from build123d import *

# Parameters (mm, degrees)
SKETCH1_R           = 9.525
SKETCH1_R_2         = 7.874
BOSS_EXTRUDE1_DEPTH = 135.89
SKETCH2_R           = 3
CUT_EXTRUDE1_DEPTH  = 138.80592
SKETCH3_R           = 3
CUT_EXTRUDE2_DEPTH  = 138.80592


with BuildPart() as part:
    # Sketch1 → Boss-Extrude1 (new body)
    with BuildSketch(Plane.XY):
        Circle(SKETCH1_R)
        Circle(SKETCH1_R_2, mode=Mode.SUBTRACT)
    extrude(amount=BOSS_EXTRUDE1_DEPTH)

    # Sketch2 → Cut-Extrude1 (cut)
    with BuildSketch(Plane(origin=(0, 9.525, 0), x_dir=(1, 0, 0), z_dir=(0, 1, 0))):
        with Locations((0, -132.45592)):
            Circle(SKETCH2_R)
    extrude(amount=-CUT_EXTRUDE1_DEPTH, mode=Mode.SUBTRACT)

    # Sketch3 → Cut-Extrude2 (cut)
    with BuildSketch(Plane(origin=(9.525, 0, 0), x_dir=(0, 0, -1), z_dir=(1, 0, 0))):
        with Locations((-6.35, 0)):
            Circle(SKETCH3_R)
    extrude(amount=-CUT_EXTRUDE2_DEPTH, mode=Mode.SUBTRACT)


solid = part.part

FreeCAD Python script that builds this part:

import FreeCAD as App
import Part
import Sketcher
Q = App.Units.Quantity

doc = App.newDocument("Part")
body = doc.addObject("PartDesign::Body", "Body")

# Sketch on XY plane
sketch1 = body.newObject("Sketcher::SketchObject", "Sketch")
sketch1.AttachmentSupport = (doc.getObject("XY_Plane"), [""])
sketch1.MapMode = "FlatFace"
sketch1.addGeometry([
    Part.Circle(App.Vector(0, 0, 0), App.Vector(0, 0, 1), 10),
    Part.Circle(App.Vector(0, 0, 0), App.Vector(0, 0, 1), 8),
], False)
sketch1.addConstraint([
    Sketcher.Constraint("Coincident", 0, 3, -1, 1),
    Sketcher.Constraint("Coincident", 1, 3, -1, 1),
    Sketcher.Constraint("Diameter", 0, Q("0.75 in")),
    Sketcher.Constraint("Diameter", 1, Q("0.62 in")),
])
pad1 = body.newObject("PartDesign::Pad", "Pad")
pad1.Profile = sketch1
pad1.Length = Q("5.35 in")

# Sketch on XZ plane
sketch2 = body.newObject("Sketcher::SketchObject", "Sketch001")
sketch2.AttachmentSupport = (doc.getObject("XZ_Plane"), [""])
sketch2.MapMode = "FlatFace"
sketch2.AttachmentOffset = App.Placement(App.Vector(0, 0, -0.375 * 25.4), App.Rotation())
sketch2.addGeometry(Part.Circle(App.Vector(0, 132.5, 0), App.Vector(0, 0, 1), 3), False)
sketch2.addConstraint([
    Sketcher.Constraint("PointOnObject", 0, 3, -2),
    Sketcher.Constraint("Diameter", 0, 6.0),
    Sketcher.Constraint("DistanceY", -1, 1, 0, 3, Q("5.2148 in")),
])
pocket1 = body.newObject("PartDesign::Pocket", "Pocket")
pocket1.Profile = sketch2
pocket1.Length = Q("5.4648 in")
pocket1.Reversed = True

# Sketch on YZ plane
sketch3 = body.newObject("Sketcher::SketchObject", "Sketch002")
sketch3.AttachmentSupport = (doc.getObject("YZ_Plane"), [""])
sketch3.MapMode = "FlatFace"
sketch3.AttachmentOffset = App.Placement(App.Vector(0, 0, 0.375 * 25.4), App.Rotation())
sketch3.addGeometry(Part.Circle(App.Vector(0, 6.3, 0), App.Vector(0, 0, 1), 3), False)
sketch3.addConstraint([
    Sketcher.Constraint("PointOnObject", 0, 3, -2),
    Sketcher.Constraint("Diameter", 0, 6.0),
    Sketcher.Constraint("DistanceY", -1, 1, 0, 3, Q("0.25 in")),
])
pocket2 = body.newObject("PartDesign::Pocket", "Pocket001")
pocket2.Profile = sketch3
pocket2.Length = Q("5.4648 in")

doc.recompute()
